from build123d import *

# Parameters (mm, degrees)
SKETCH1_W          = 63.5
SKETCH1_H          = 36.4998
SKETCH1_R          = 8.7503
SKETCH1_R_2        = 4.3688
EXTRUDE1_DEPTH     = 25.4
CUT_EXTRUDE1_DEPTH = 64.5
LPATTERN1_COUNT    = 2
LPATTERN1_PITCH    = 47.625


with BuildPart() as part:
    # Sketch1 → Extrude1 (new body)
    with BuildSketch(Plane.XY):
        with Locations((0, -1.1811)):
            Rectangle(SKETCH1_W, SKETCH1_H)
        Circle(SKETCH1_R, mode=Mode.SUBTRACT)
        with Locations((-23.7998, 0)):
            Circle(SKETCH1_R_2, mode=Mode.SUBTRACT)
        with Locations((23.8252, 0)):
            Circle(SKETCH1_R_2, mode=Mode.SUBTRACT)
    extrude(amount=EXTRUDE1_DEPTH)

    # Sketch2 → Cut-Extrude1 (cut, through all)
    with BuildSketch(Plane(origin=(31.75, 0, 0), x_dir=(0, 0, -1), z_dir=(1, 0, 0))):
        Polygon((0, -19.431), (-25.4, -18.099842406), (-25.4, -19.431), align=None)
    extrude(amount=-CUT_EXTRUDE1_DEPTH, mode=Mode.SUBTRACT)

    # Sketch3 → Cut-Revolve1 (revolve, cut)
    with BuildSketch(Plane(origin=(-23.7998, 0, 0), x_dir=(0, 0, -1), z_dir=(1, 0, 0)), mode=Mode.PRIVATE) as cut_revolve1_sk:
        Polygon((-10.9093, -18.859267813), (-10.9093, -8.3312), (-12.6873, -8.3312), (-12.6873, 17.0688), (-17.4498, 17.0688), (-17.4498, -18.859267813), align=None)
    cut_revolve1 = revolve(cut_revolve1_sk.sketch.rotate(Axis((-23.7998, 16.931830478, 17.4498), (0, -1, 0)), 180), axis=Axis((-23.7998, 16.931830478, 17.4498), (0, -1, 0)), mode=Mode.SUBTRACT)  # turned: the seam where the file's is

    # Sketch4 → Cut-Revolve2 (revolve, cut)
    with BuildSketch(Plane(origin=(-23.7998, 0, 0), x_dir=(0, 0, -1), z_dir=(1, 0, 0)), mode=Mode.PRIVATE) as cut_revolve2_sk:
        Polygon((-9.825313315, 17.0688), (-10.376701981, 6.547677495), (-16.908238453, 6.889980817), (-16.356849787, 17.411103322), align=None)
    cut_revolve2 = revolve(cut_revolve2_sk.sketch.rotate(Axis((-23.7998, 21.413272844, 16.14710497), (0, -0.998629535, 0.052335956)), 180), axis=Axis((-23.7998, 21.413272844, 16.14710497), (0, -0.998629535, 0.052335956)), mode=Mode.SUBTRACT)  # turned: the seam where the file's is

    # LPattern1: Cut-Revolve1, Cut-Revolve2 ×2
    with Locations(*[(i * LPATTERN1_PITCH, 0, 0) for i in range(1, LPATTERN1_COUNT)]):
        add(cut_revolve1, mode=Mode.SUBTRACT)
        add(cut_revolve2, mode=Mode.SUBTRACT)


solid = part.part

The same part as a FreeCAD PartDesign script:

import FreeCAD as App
import Part
import Sketcher
from FreeCAD import Vector
Q = App.Units.Quantity

doc = App.newDocument("Part")
body = doc.addObject("PartDesign::Body", "Body")

# Sketch on XY plane
sketch1 = body.newObject("Sketcher::SketchObject", "Sketch")
sketch1.AttachmentSupport = (doc.getObject("XY_Plane"), [""])
sketch1.MapMode = "FlatFace"
sketch1.addGeometry([
    Part.LineSegment(Vector(-31.8, 17.1, 0), Vector(-31.8, -19.4, 0)),  # 0
    Part.LineSegment(Vector(-31.8, -19.4, 0), Vector(31.8, -19.4, 0)),  # 1
    Part.LineSegment(Vector(31.8, -19.4, 0), Vector(31.8, 17.1, 0)),  # 2
    Part.LineSegment(Vector(31.8, 17.1, 0), Vector(-31.8, 17.1, 0)),  # 3
    Part.Circle(Vector(-23.8, 0, 0), Vector(0, 0, 1), 4.4),  # 4
    Part.Circle(Vector(0, 0, 0), Vector(0, 0, 1), 8.8),  # 5
    Part.Circle(Vector(23.8, 0, 0), Vector(0, 0, 1), 4.4),  # 6
], False)
sketch1.addConstraint([
    Sketcher.Constraint("Coincident", 0, 2, 1, 1),
    Sketcher.Constraint("Coincident", 1, 2, 2, 1),
    Sketcher.Constraint("Coincident", 2, 2, 3, 1),
    Sketcher.Constraint("Coincident", 3, 2, 0, 1),
    Sketcher.Constraint("Vertical", 0),
    Sketcher.Constraint("Horizontal", 1),
    Sketcher.Constraint("Vertical", 2),
    Sketcher.Constraint("Horizontal", 3),
    Sketcher.Constraint("Coincident", 5, 3, -1, 1),
    Sketcher.Constraint("Equal", 4, 6),
    Sketcher.Constraint("PointOnObject", 4, 3, -1),
    Sketcher.Constraint("PointOnObject", 6, 3, -1),
    Sketcher.Constraint("Diameter", 4, Q("0.344 in")),
    Sketcher.Constraint("Diameter", 5, Q("0.689 in")),
    Sketcher.Constraint("DistanceX", 1, 1, 1, 2, Q("2.5 in")),
    Sketcher.Constraint("DistanceY", 0, 2, 0, 1, Q("1.437 in")),
    Sketcher.Constraint("DistanceX", 0, 2, -1, 1, Q("1.25 in")),
    Sketcher.Constraint("DistanceX", 4, 3, -1, 1, Q("0.937 in")),
    Sketcher.Constraint("DistanceX", -1, 1, 6, 3, Q("0.938 in")),
    Sketcher.Constraint("DistanceY", 0, 2, -1, 1, Q("0.765 in")),
])
pad1 = body.newObject("PartDesign::Pad", "Pad")
pad1.Profile = sketch1
pad1.Length = Q("1 in")

# Sketch on YZ plane
sketch2 = body.newObject("Sketcher::SketchObject", "Sketch001")
sketch2.AttachmentSupport = (doc.getObject("YZ_Plane"), [""])
sketch2.MapMode = "FlatFace"
sketch2.AttachmentOffset = App.Placement(Vector(0, 0, 1.25 * 25.4), App.Rotation())
sketch2.addGeometry([
    Part.LineSegment(Vector(-19.4, 0, 0), Vector(-18.1, 25.4, 0)),
    Part.LineSegment(Vector(-18.1, 25.4, 0), Vector(-19.4, 25.4, 0)),
    Part.LineSegment(Vector(-19.4, 25.4, 0), Vector(-19.4, 0, 0)),
], False)
sketch2.addConstraint([
    Sketcher.Constraint("Coincident", 0, 2, 1, 1),
    Sketcher.Constraint("Coincident", 1, 2, 2, 1),
    Sketcher.Constraint("Coincident", 2, 2, 0, 1),
    Sketcher.Constraint("Horizontal", 1),
    Sketcher.Constraint("Vertical", 2),
    Sketcher.Constraint("PointOnObject", 2, 2, -1),
    Sketcher.Constraint("DistanceY", 2, 2, 2, 1, Q("1 in")),
    Sketcher.Constraint("Angle", 0, Q("87 deg")),
    Sketcher.Constraint("DistanceX", 1, 2, -1, 1, Q("0.765 in")),
])
pocket1 = body.newObject("PartDesign::Pocket", "Pocket")
pocket1.Profile = sketch2
pocket1.Type = "ThroughAll"

# Sketch on YZ plane
sketch3 = body.newObject("Sketcher::SketchObject", "Sketch002")
sketch3.AttachmentSupport = (doc.getObject("YZ_Plane"), [""])
sketch3.MapMode = "FlatFace"
sketch3.AttachmentOffset = App.Placement(Vector(0, 0, -0.937 * 25.4), App.Rotation())
sketch3.addGeometry([
    Part.LineSegment(Vector(-18.9, 10.9, 0), Vector(-8.3, 10.9, 0)),  # 0
    Part.LineSegment(Vector(-8.3, 10.9, 0), Vector(-8.3, 12.7, 0)),  # 1
    Part.LineSegment(Vector(-8.3, 12.7, 0), Vector(17.1, 12.7, 0)),  # 2
    Part.LineSegment(Vector(17.1, 12.7, 0), Vector(17.1, 17.4, 0)),  # 3
    Part.LineSegment(Vector(17.1, 17.4, 0), Vector(-18.9, 17.4, 0)),  # 4
    Part.LineSegment(Vector(-18.9, 17.4, 0), Vector(-18.9, 10.9, 0)),  # 5
], False)
sketch3.addGeometry(Part.LineSegment(Vector(17.1, 17.4, 0), Vector(-18.9, 17.4, 0)), True)  # axis
sketch3.addConstraint([
    Sketcher.Constraint("Coincident", 0, 2, 1, 1),
    Sketcher.Constraint("Coincident", 1, 2, 2, 1),
    Sketcher.Constraint("Coincident", 2, 2, 3, 1),
    Sketcher.Constraint("Coincident", 3, 2, 4, 1),
    Sketcher.Constraint("Coincident", 4, 2, 5, 1),
    Sketcher.Constraint("Coincident", 5, 2, 0, 1),
    Sketcher.Constraint("Horizontal", 0),
    Sketcher.Constraint("Vertical", 1),
    Sketcher.Constraint("Horizontal", 2),
    Sketcher.Constraint("Vertical", 3),
    Sketcher.Constraint("Horizontal", 4),
    Sketcher.Constraint("Vertical", 5),
    Sketcher.Constraint("Horizontal", 6),
    Sketcher.Constraint("Coincident", 6, 1, 3, 2),
    Sketcher.Constraint("Vertical", 5, 2, 6, 2),
    Sketcher.Constraint("DistanceX", 2, 1, 2, 2, Q("1 in")),
    Sketcher.Constraint("DistanceY", 1, 1, 1, 2, Q("0.07 in")),
    Sketcher.Constraint("DistanceY", 3, 1, 3, 2, Q("0.1875 in")),
    Sketcher.Constraint("DistanceX", 0, 2, -1, 1, Q("0.328 in")),
    Sketcher.Constraint("DistanceY", -1, 1, 3, 2, Q("0.687 in")),
    Sketcher.Constraint("DistanceX", 0, 1, 0, 2, Q("10.528068 mm")),
])
groove = body.newObject("PartDesign::Groove", "Groove")
groove.Profile = sketch3
groove.ReferenceAxis = (sketch3, ["Axis0"])
groove.Angle = 360

# Sketch on YZ plane
sketch4 = body.newObject("Sketcher::SketchObject", "Sketch003")
sketch4.AttachmentSupport = (doc.getObject("YZ_Plane"), [""])
sketch4.MapMode = "FlatFace"
sketch4.AttachmentOffset = App.Placement(Vector(0, 0, -0.937 * 25.4), App.Rotation())
sketch4.addGeometry([
    Part.LineSegment(Vector(7, 10, 0), Vector(17, 10, 0)),
    Part.LineSegment(Vector(17, 10, 0), Vector(17, 16, 0)),
    Part.LineSegment(Vector(17, 16, 0), Vector(7, 17, 0)),
    Part.LineSegment(Vector(7, 17, 0), Vector(7, 10, 0)),
], False)
sketch4.addGeometry(Part.LineSegment(Vector(17, 16, 0), Vector(7, 17, 0)), True)  # axis
sketch4.addConstraint([
    Sketcher.Constraint("Coincident", 0, 2, 1, 1),
    Sketcher.Constraint("Coincident", 1, 2, 2, 1),
    Sketcher.Constraint("Coincident", 2, 2, 3, 1),
    Sketcher.Constraint("Coincident", 3, 2, 0, 1),
    Sketcher.Constraint("Coincident", 4, 1, 1, 2),
    Sketcher.Constraint("Coincident", 4, 2, 2, 2),
    Sketcher.Constraint("Perpendicular", 0, 1),
    Sketcher.Constraint("Perpendicular", 1, 2),
    Sketcher.Constraint("Perpendicular", 2, 3),
    Sketcher.Constraint("Angle", 0, Q("-3 deg")),
    Sketcher.Constraint("DistanceX", -1, 1, 0, 2, Q("0.672 in")),
    Sketcher.Constraint("Distance", 1, Q("0.2575 in")),
    Sketcher.Constraint("DistanceY", -1, 1, 3, 2, Q("10.376702 mm")),
    Sketcher.Constraint("Distance", 0, Q("10.535561 mm")),
])
groove2 = body.newObject("PartDesign::Groove", "Groove001")
groove2.Profile = sketch4
groove2.ReferenceAxis = (sketch4, ["Axis0"])
groove2.Angle = 360
doc.recompute()

linearpattern = body.newObject("PartDesign::LinearPattern", "LinearPattern")
linearpattern.Originals = [groove, groove2]
linearpattern.Direction = (doc.getObject("X_Axis"), [""])
linearpattern.Mode = "offset"
linearpattern.Offset = Q("1.875 in")
linearpattern.Occurrences = 2
body.Tip = linearpattern

doc.recompute()
